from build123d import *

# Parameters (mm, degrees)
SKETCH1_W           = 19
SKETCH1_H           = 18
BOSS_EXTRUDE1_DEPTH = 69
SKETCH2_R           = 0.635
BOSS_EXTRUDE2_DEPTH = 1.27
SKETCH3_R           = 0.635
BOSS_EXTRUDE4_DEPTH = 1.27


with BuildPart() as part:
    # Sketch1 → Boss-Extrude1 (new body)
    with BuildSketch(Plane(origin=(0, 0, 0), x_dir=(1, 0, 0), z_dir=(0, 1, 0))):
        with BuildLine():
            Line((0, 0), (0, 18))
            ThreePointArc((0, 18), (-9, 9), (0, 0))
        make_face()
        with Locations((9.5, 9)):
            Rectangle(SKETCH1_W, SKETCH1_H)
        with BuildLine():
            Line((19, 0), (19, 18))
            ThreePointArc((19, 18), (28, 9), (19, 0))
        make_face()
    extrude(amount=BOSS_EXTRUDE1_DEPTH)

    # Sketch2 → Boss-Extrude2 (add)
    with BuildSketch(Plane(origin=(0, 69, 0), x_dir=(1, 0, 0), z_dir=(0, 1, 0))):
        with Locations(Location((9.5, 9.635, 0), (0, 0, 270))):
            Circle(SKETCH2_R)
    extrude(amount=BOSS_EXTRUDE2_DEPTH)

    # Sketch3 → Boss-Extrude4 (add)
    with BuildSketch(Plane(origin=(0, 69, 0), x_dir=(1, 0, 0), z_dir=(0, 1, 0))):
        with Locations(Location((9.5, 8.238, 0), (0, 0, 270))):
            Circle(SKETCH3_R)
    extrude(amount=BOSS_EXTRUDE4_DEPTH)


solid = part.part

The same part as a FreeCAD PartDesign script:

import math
import FreeCAD as App
import Part
import Sketcher

V = App.Vector

doc = App.newDocument("Part")
body = doc.addObject("PartDesign::Body", "Body")

sketch1 = doc.addObject("Sketcher::SketchObject", "Sketch")
body.addObject(sketch1)
sketch1.AttachmentSupport = (doc.XZ_Plane, [""])
sketch1.MapMode = "FlatFace"
sketch1.addGeometry([
    Part.ArcOfCircle(Part.Circle(V(0, -9, 0), V(0, 0, 1), 9), math.radians(90), math.radians(270)),
    Part.LineSegment(V(0, 0, 0), V(19, 0, 0)),
    Part.ArcOfCircle(Part.Circle(V(19, -9, 0), V(0, 0, 1), 9), math.radians(-90), math.radians(90)),
    Part.LineSegment(V(19, -18, 0), V(0, -18, 0)),
], False)
sketch1.addConstraint([
    Sketcher.Constraint("Tangent", 0, 1, 1, 1),
    Sketcher.Constraint("Tangent", 1, 2, 2, 2),
    Sketcher.Constraint("Tangent", 2, 1, 3, 1),
    Sketcher.Constraint("Tangent", 3, 2, 0, 2),
    Sketcher.Constraint("Horizontal", 1),
    Sketcher.Constraint("Horizontal", 3),
    Sketcher.Constraint("Coincident", 0, 1, -1, 1),
    Sketcher.Constraint("Radius", 0, 9.0),
    Sketcher.Constraint("DistanceX", 1, 1, 1, 2, 19.0),
])
pad1 = doc.addObject("PartDesign::Pad", "Pad")
body.addObject(pad1)
pad1.Profile = sketch1
pad1.Length = 69
pad1.Reversed = True

sketch2 = doc.addObject("Sketcher::SketchObject", "Sketch001")
body.addObject(sketch2)
sketch2.AttachmentSupport = (doc.XZ_Plane, [""])
sketch2.MapMode = "FlatFace"
sketch2.AttachmentOffset = App.Placement(V(0, 0, -69), App.Rotation())
sketch2.addGeometry(Part.Circle(V(9.5, -9.6, 0), V(0, 0, 1), 0.6), False)
sketch2.addConstraint([
    Sketcher.Constraint("Diameter", 0, 1.27),
    Sketcher.Constraint("DistanceX", -1, 1, 0, 3, 9.5),
    Sketcher.Constraint("DistanceY", 0, 3, -1, 1, 9.635),
])
pad2 = doc.addObject("PartDesign::Pad", "Pad001")
body.addObject(pad2)
pad2.Profile = sketch2
pad2.Length = 1.27
pad2.Reversed = True

sketch3 = doc.addObject("Sketcher::SketchObject", "Sketch002")
body.addObject(sketch3)
sketch3.AttachmentSupport = (doc.XZ_Plane, [""])
sketch3.MapMode = "FlatFace"
sketch3.AttachmentOffset = App.Placement(V(0, 0, -69), App.Rotation())
sketch3.addGeometry(Part.Circle(V(9.5, -8.2, 0), V(0, 0, 1), 0.6), False)
sketch3.addConstraint([
    Sketcher.Constraint("Diameter", 0, 1.27),
    Sketcher.Constraint("DistanceX", -1, 1, 0, 3, 9.5),
    Sketcher.Constraint("DistanceY", 0, 3, -1, 1, 8.238),
])
pad3 = doc.addObject("PartDesign::Pad", "Pad002")
body.addObject(pad3)
pad3.Profile = sketch3
pad3.Length = 1.27
pad3.Reversed = True

doc.recompute()
